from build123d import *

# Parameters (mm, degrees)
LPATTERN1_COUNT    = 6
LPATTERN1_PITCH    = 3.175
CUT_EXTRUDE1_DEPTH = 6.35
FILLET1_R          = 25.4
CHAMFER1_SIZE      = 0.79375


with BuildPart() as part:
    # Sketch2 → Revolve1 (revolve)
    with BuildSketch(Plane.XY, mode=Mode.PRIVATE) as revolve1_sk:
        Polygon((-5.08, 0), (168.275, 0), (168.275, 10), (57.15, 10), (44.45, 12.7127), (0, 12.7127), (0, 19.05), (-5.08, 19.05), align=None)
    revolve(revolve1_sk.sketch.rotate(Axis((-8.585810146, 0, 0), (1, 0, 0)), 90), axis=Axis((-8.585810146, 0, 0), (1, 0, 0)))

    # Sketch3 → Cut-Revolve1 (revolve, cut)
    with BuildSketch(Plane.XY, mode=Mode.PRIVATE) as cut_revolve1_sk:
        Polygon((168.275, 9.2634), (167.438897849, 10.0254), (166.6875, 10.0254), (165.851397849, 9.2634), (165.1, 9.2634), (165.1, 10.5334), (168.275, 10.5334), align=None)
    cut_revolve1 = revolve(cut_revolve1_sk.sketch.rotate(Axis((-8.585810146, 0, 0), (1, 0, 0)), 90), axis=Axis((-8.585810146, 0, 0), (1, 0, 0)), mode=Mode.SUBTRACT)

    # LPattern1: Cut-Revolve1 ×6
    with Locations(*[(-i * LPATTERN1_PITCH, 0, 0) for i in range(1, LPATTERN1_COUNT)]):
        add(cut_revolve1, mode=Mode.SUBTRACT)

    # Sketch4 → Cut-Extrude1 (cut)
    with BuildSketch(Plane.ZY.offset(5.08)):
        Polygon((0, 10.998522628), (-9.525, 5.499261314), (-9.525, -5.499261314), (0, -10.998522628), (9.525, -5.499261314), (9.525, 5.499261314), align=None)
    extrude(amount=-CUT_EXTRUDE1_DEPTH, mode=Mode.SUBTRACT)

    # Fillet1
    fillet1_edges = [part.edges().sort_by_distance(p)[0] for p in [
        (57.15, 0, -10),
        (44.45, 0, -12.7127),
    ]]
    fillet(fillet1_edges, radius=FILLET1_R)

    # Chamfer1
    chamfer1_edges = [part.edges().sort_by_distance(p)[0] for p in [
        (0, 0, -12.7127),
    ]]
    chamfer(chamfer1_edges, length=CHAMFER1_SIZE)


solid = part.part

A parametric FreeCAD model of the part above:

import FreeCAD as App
import Part
import Sketcher
Q = App.Units.Quantity


def edges_at(feature, points):
    """Names of the edges that pass closest to the given points."""
    edges = feature.Shape.Edges
    near = lambda p: min(range(len(edges)), key=lambda i: edges[i].distToShape(Part.Vertex(*p))[0])
    return sorted({f"Edge{near(p) + 1}" for p in points})

doc = App.newDocument("Part")
params = doc.addObject("Spreadsheet::Sheet", "Params")
for row, (alias, value) in enumerate([
    ("sketch1_width", "0.2 in"),
    ("sketch1_width2", "1.75 in"),
    ("sketch1_height", "0.75 in"),
    ("sketch1_width3", "6.825 in"),
    ("revolution_angle", "360 deg"),
    ("sketch2_height", "0.05 in"),
    ("sketch2_width", "0.125 in"),
    ("groove_angle", "360 deg"),
    ("linearpattern_pitch", "0.125 in"),
    ("pocket1_length", "0.25 in"),
    ("fillet_radius", "1 in"),
    ("chamfer_size", "0.03125 in"),
], start=1):
    params.set(f"A{row}", alias)
    params.set(f"B{row}", "=" + value)
    params.setAlias(f"B{row}", alias)

body = doc.addObject("PartDesign::Body", "Body")

# Sketch on XY plane
sketch1 = body.newObject("Sketcher::SketchObject", "Sketch")
sketch1.AttachmentSupport = (doc.getObject("XY_Plane"), [""])
sketch1.MapMode = "FlatFace"
sketch1.addGeometry(Part.LineSegment(App.Vector(-5, 0, 0), App.Vector(168, 0, 0)), False)
sketch1.addGeometry(Part.LineSegment(App.Vector(168, 0, 0), App.Vector(168, 10, 0)), False)
sketch1.addGeometry(Part.LineSegment(App.Vector(168, 10, 0), App.Vector(57, 10, 0)), False)
sketch1.addGeometry(Part.LineSegment(App.Vector(57, 10, 0), App.Vector(44, 13, 0)), False)
sketch1.addGeometry(Part.LineSegment(App.Vector(44, 13, 0), App.Vector(0, 13, 0)), False)
sketch1.addGeometry(Part.LineSegment(App.Vector(0, 13, 0), App.Vector(0, 19, 0)), False)
sketch1.addGeometry(Part.LineSegment(App.Vector(0, 19, 0), App.Vector(-5, 19, 0)), False)
sketch1.addGeometry(Part.LineSegment(App.Vector(-5, 19, 0), App.Vector(-5, 0, 0)), False)
sketch1.addConstraint(Sketcher.Constraint("Coincident", 0, 2, 1, 1))
sketch1.addConstraint(Sketcher.Constraint("Coincident", 1, 2, 2, 1))
sketch1.addConstraint(Sketcher.Constraint("Coincident", 2, 2, 3, 1))
sketch1.addConstraint(Sketcher.Constraint("Coincident", 3, 2, 4, 1))
sketch1.addConstraint(Sketcher.Constraint("Coincident", 4, 2, 5, 1))
sketch1.addConstraint(Sketcher.Constraint("Coincident", 5, 2, 6, 1))
sketch1.addConstraint(Sketcher.Constraint("Coincident", 6, 2, 7, 1))
sketch1.addConstraint(Sketcher.Constraint("Coincident", 7, 2, 0, 1))
sketch1.addConstraint(Sketcher.Constraint("Horizontal", 0))
sketch1.addConstraint(Sketcher.Constraint("Vertical", 1))
sketch1.addConstraint(Sketcher.Constraint("Horizontal", 2))
sketch1.addConstraint(Sketcher.Constraint("Horizontal", 4))
sketch1.addConstraint(Sketcher.Constraint("Vertical", 5))
sketch1.addConstraint(Sketcher.Constraint("Horizontal", 6))
sketch1.addConstraint(Sketcher.Constraint("Vertical", 7))
sketch1.addConstraint(Sketcher.Constraint("PointOnObject", 0, 2, -1))
sketch1.addConstraint(Sketcher.Constraint("PointOnObject", 4, 2, -2))
sketch1.addConstraint(Sketcher.Constraint("DistanceX", 6, 2, 6, 1, Q("0.2 in")))
sketch1.addConstraint(Sketcher.Constraint("DistanceX", 4, 2, 4, 1, Q("1.75 in")))
sketch1.addConstraint(Sketcher.Constraint("DistanceY", 7, 2, 7, 1, Q("0.75 in")))
sketch1.addConstraint(Sketcher.Constraint("DistanceX", 3, 2, 2, 2, Q("0.5 in")))
sketch1.addConstraint(Sketcher.Constraint("DistanceX", 0, 1, 0, 2, Q("6.825 in")))
sketch1.addConstraint(Sketcher.Constraint("DistanceY", 5, 1, 5, 2, Q("0.2495 in")))
sketch1.addConstraint(Sketcher.Constraint("DistanceY", 1, 1, 1, 2, Q("10 mm")))
sketch1.setExpression("Constraints[17]", "Params.sketch1_width")
sketch1.setExpression("Constraints[18]", "Params.sketch1_width2")
sketch1.setExpression("Constraints[19]", "Params.sketch1_height")
sketch1.setExpression("Constraints[21]", "Params.sketch1_width3")
revolution = body.newObject("PartDesign::Revolution", "Revolution")
revolution.Profile = sketch1
revolution.ReferenceAxis = (sketch1, ["H_Axis"])
revolution.setExpression("Angle", "Params.revolution_angle")

# Sketch on XY plane
sketch2 = body.newObject("Sketcher::SketchObject", "Sketch001")
sketch2.AttachmentSupport = (doc.getObject("XY_Plane"), [""])
sketch2.MapMode = "FlatFace"
sketch2.addGeometry(Part.LineSegment(App.Vector(167.4, 10, 0), App.Vector(168.3, 9.3, 0)), False)
sketch2.addGeometry(Part.LineSegment(App.Vector(168.3, 9.3, 0), App.Vector(168.3, 10.5, 0)), False)
sketch2.addGeometry(Part.LineSegment(App.Vector(168.3, 10.5, 0), App.Vector(165.1, 10.5, 0)), False)
sketch2.addGeometry(Part.LineSegment(App.Vector(165.1, 10.5, 0), App.Vector(165.1, 9.3, 0)), False)
sketch2.addGeometry(Part.LineSegment(App.Vector(165.1, 9.3, 0), App.Vector(165.9, 9.3, 0)), False)
sketch2.addGeometry(Part.LineSegment(App.Vector(165.9, 9.3, 0), App.Vector(166.7, 10, 0)), False)
sketch2.addGeometry(Part.LineSegment(App.Vector(166.7, 10, 0), App.Vector(167.4, 10, 0)), False)
sketch2.addConstraint(Sketcher.Constraint("Coincident", 0, 2, 1, 1))
sketch2.addConstraint(Sketcher.Constraint("Coincident", 1, 2, 2, 1))
sketch2.addConstraint(Sketcher.Constraint("Coincident", 2, 2, 3, 1))
sketch2.addConstraint(Sketcher.Constraint("Coincident", 3, 2, 4, 1))
sketch2.addConstraint(Sketcher.Constraint("Coincident", 4, 2, 5, 1))
sketch2.addConstraint(Sketcher.Constraint("Coincident", 5, 2, 6, 1))
sketch2.addConstraint(Sketcher.Constraint("Coincident", 6, 2, 0, 1))
sketch2.addConstraint(Sketcher.Constraint("Vertical", 1))
sketch2.addConstraint(Sketcher.Constraint("Horizontal", 2))
sketch2.addConstraint(Sketcher.Constraint("Vertical", 3))
sketch2.addConstraint(Sketcher.Constraint("Horizontal", 4))
sketch2.addConstraint(Sketcher.Constraint("Horizontal", 6))
sketch2.addConstraint(Sketcher.Constraint("Horizontal", 0, 2, 3, 2))
sketch2.addConstraint(Sketcher.Constraint("Equal", 4, 6))
sketch2.addConstraint(Sketcher.Constraint("Equal", 0, 5))
sketch2.addConstraint(Sketcher.Constraint("DistanceY", 1, 1, 1, 2, Q("0.05 in")))
sketch2.addConstraint(Sketcher.Constraint("DistanceX", -1, 1, 2, 2, Q("6.5 in")))
sketch2.addConstraint(Sketcher.Constraint("DistanceX", 2, 2, 2, 1, Q("0.125 in")))
sketch2.addConstraint(Sketcher.Constraint("DistanceY", 4, 2, 5, 2, Q("0.03 in")))
sketch2.addConstraint(Sketcher.Constraint("DistanceY", -1, 1, 0, 2, Q("9.2634 mm")))
sketch2.addConstraint(Sketcher.Constraint("DistanceX", 4, 1, 4, 2, Q("0.751398 mm")))
sketch2.setExpression("Constraints[15]", "Params.sketch2_height")
sketch2.setExpression("Constraints[17]", "Params.sketch2_width")
groove = body.newObject("PartDesign::Groove", "Groove")
groove.Profile = sketch2
groove.ReferenceAxis = (sketch2, ["H_Axis"])
groove.setExpression("Angle", "Params.groove_angle")
doc.recompute()

linearpattern = body.newObject("PartDesign::LinearPattern", "LinearPattern")
linearpattern.Originals = [groove]
linearpattern.Direction = (doc.getObject("X_Axis"), [""])
linearpattern.Mode = "offset"
linearpattern.setExpression("Offset", "Params.linearpattern_pitch")
linearpattern.Occurrences = 6
linearpattern.Reversed = True
body.Tip = linearpattern

# Sketch on YZ plane
sketch3 = body.newObject("Sketcher::SketchObject", "Sketch002")
sketch3.AttachmentSupport = (doc.getObject("YZ_Plane"), [""])
sketch3.MapMode = "FlatFace"
sketch3.AttachmentOffset = App.Placement(App.Vector(0, 0, -0.2 * 25.4), App.Rotation())
sketch3.addGeometry(Part.LineSegment(App.Vector(11, 0, 0), App.Vector(5, -10, 0)), False)
sketch3.addGeometry(Part.LineSegment(App.Vector(5, -10, 0), App.Vector(-5, -10, 0)), False)
sketch3.addGeometry(Part.LineSegment(App.Vector(-5, -10, 0), App.Vector(-11, 0, 0)), False)
sketch3.addGeometry(Part.LineSegment(App.Vector(-11, 0, 0), App.Vector(-5, 10, 0)), False)
sketch3.addGeometry(Part.LineSegment(App.Vector(-5, 10, 0), App.Vector(5, 10, 0)), False)
sketch3.addGeometry(Part.LineSegment(App.Vector(5, 10, 0), App.Vector(11, 0, 0)), False)
sketch3.addConstraint(Sketcher.Constraint("Coincident", 0, 2, 1, 1))
sketch3.addConstraint(Sketcher.Constraint("Coincident", 1, 2, 2, 1))
sketch3.addConstraint(Sketcher.Constraint("Coincident", 2, 2, 3, 1))
sketch3.addConstraint(Sketcher.Constraint("Coincident", 3, 2, 4, 1))
sketch3.addConstraint(Sketcher.Constraint("Coincident", 4, 2, 5, 1))
sketch3.addConstraint(Sketcher.Constraint("Coincident", 5, 2, 0, 1))
sketch3.addConstraint(Sketcher.Constraint("Horizontal", 1))
sketch3.addConstraint(Sketcher.Constraint("Horizontal", 4))
sketch3.addConstraint(Sketcher.Constraint("Symmetric", 0, 2, 3, 2, -1, 1))
sketch3.addConstraint(Sketcher.Constraint("Symmetric", 2, 2, 5, 2, -1, 1))
sketch3.addConstraint(Sketcher.Constraint("PointOnObject", 2, 2, -1))
sketch3.addConstraint(Sketcher.Constraint("Parallel", 2, 5))
sketch3.addConstraint(Sketcher.Constraint("Vertical", 1, 2, 3, 2))
sketch3.addConstraint(Sketcher.Constraint("Angle", 0, Q("-120 deg")))
sketch3.addConstraint(Sketcher.Constraint("DistanceY", 1, 2, 3, 2, Q("0.75 in")))
sketch3.addConstraint(Sketcher.Constraint("DistanceX", 1, 2, 1, 1, Q("10.998523 mm")))
pocket1 = body.newObject("PartDesign::Pocket", "Pocket")
pocket1.Profile = sketch3
pocket1.setExpression("Length", "Params.pocket1_length")
pocket1.Reversed = True
doc.recompute()

fillet = body.newObject("PartDesign::Fillet", "Fillet")
fillet.Base = (pocket1, edges_at(pocket1, [(57.15, 0, -10), (44.45, 0, -12.713)]))
fillet.setExpression("Radius", "Params.fillet_radius")
doc.recompute()

chamfer = body.newObject("PartDesign::Chamfer", "Chamfer")
chamfer.Base = (fillet, edges_at(fillet, [(0, 0, -12.713)]))
chamfer.setExpression("Size", "Params.chamfer_size")

doc.recompute()
